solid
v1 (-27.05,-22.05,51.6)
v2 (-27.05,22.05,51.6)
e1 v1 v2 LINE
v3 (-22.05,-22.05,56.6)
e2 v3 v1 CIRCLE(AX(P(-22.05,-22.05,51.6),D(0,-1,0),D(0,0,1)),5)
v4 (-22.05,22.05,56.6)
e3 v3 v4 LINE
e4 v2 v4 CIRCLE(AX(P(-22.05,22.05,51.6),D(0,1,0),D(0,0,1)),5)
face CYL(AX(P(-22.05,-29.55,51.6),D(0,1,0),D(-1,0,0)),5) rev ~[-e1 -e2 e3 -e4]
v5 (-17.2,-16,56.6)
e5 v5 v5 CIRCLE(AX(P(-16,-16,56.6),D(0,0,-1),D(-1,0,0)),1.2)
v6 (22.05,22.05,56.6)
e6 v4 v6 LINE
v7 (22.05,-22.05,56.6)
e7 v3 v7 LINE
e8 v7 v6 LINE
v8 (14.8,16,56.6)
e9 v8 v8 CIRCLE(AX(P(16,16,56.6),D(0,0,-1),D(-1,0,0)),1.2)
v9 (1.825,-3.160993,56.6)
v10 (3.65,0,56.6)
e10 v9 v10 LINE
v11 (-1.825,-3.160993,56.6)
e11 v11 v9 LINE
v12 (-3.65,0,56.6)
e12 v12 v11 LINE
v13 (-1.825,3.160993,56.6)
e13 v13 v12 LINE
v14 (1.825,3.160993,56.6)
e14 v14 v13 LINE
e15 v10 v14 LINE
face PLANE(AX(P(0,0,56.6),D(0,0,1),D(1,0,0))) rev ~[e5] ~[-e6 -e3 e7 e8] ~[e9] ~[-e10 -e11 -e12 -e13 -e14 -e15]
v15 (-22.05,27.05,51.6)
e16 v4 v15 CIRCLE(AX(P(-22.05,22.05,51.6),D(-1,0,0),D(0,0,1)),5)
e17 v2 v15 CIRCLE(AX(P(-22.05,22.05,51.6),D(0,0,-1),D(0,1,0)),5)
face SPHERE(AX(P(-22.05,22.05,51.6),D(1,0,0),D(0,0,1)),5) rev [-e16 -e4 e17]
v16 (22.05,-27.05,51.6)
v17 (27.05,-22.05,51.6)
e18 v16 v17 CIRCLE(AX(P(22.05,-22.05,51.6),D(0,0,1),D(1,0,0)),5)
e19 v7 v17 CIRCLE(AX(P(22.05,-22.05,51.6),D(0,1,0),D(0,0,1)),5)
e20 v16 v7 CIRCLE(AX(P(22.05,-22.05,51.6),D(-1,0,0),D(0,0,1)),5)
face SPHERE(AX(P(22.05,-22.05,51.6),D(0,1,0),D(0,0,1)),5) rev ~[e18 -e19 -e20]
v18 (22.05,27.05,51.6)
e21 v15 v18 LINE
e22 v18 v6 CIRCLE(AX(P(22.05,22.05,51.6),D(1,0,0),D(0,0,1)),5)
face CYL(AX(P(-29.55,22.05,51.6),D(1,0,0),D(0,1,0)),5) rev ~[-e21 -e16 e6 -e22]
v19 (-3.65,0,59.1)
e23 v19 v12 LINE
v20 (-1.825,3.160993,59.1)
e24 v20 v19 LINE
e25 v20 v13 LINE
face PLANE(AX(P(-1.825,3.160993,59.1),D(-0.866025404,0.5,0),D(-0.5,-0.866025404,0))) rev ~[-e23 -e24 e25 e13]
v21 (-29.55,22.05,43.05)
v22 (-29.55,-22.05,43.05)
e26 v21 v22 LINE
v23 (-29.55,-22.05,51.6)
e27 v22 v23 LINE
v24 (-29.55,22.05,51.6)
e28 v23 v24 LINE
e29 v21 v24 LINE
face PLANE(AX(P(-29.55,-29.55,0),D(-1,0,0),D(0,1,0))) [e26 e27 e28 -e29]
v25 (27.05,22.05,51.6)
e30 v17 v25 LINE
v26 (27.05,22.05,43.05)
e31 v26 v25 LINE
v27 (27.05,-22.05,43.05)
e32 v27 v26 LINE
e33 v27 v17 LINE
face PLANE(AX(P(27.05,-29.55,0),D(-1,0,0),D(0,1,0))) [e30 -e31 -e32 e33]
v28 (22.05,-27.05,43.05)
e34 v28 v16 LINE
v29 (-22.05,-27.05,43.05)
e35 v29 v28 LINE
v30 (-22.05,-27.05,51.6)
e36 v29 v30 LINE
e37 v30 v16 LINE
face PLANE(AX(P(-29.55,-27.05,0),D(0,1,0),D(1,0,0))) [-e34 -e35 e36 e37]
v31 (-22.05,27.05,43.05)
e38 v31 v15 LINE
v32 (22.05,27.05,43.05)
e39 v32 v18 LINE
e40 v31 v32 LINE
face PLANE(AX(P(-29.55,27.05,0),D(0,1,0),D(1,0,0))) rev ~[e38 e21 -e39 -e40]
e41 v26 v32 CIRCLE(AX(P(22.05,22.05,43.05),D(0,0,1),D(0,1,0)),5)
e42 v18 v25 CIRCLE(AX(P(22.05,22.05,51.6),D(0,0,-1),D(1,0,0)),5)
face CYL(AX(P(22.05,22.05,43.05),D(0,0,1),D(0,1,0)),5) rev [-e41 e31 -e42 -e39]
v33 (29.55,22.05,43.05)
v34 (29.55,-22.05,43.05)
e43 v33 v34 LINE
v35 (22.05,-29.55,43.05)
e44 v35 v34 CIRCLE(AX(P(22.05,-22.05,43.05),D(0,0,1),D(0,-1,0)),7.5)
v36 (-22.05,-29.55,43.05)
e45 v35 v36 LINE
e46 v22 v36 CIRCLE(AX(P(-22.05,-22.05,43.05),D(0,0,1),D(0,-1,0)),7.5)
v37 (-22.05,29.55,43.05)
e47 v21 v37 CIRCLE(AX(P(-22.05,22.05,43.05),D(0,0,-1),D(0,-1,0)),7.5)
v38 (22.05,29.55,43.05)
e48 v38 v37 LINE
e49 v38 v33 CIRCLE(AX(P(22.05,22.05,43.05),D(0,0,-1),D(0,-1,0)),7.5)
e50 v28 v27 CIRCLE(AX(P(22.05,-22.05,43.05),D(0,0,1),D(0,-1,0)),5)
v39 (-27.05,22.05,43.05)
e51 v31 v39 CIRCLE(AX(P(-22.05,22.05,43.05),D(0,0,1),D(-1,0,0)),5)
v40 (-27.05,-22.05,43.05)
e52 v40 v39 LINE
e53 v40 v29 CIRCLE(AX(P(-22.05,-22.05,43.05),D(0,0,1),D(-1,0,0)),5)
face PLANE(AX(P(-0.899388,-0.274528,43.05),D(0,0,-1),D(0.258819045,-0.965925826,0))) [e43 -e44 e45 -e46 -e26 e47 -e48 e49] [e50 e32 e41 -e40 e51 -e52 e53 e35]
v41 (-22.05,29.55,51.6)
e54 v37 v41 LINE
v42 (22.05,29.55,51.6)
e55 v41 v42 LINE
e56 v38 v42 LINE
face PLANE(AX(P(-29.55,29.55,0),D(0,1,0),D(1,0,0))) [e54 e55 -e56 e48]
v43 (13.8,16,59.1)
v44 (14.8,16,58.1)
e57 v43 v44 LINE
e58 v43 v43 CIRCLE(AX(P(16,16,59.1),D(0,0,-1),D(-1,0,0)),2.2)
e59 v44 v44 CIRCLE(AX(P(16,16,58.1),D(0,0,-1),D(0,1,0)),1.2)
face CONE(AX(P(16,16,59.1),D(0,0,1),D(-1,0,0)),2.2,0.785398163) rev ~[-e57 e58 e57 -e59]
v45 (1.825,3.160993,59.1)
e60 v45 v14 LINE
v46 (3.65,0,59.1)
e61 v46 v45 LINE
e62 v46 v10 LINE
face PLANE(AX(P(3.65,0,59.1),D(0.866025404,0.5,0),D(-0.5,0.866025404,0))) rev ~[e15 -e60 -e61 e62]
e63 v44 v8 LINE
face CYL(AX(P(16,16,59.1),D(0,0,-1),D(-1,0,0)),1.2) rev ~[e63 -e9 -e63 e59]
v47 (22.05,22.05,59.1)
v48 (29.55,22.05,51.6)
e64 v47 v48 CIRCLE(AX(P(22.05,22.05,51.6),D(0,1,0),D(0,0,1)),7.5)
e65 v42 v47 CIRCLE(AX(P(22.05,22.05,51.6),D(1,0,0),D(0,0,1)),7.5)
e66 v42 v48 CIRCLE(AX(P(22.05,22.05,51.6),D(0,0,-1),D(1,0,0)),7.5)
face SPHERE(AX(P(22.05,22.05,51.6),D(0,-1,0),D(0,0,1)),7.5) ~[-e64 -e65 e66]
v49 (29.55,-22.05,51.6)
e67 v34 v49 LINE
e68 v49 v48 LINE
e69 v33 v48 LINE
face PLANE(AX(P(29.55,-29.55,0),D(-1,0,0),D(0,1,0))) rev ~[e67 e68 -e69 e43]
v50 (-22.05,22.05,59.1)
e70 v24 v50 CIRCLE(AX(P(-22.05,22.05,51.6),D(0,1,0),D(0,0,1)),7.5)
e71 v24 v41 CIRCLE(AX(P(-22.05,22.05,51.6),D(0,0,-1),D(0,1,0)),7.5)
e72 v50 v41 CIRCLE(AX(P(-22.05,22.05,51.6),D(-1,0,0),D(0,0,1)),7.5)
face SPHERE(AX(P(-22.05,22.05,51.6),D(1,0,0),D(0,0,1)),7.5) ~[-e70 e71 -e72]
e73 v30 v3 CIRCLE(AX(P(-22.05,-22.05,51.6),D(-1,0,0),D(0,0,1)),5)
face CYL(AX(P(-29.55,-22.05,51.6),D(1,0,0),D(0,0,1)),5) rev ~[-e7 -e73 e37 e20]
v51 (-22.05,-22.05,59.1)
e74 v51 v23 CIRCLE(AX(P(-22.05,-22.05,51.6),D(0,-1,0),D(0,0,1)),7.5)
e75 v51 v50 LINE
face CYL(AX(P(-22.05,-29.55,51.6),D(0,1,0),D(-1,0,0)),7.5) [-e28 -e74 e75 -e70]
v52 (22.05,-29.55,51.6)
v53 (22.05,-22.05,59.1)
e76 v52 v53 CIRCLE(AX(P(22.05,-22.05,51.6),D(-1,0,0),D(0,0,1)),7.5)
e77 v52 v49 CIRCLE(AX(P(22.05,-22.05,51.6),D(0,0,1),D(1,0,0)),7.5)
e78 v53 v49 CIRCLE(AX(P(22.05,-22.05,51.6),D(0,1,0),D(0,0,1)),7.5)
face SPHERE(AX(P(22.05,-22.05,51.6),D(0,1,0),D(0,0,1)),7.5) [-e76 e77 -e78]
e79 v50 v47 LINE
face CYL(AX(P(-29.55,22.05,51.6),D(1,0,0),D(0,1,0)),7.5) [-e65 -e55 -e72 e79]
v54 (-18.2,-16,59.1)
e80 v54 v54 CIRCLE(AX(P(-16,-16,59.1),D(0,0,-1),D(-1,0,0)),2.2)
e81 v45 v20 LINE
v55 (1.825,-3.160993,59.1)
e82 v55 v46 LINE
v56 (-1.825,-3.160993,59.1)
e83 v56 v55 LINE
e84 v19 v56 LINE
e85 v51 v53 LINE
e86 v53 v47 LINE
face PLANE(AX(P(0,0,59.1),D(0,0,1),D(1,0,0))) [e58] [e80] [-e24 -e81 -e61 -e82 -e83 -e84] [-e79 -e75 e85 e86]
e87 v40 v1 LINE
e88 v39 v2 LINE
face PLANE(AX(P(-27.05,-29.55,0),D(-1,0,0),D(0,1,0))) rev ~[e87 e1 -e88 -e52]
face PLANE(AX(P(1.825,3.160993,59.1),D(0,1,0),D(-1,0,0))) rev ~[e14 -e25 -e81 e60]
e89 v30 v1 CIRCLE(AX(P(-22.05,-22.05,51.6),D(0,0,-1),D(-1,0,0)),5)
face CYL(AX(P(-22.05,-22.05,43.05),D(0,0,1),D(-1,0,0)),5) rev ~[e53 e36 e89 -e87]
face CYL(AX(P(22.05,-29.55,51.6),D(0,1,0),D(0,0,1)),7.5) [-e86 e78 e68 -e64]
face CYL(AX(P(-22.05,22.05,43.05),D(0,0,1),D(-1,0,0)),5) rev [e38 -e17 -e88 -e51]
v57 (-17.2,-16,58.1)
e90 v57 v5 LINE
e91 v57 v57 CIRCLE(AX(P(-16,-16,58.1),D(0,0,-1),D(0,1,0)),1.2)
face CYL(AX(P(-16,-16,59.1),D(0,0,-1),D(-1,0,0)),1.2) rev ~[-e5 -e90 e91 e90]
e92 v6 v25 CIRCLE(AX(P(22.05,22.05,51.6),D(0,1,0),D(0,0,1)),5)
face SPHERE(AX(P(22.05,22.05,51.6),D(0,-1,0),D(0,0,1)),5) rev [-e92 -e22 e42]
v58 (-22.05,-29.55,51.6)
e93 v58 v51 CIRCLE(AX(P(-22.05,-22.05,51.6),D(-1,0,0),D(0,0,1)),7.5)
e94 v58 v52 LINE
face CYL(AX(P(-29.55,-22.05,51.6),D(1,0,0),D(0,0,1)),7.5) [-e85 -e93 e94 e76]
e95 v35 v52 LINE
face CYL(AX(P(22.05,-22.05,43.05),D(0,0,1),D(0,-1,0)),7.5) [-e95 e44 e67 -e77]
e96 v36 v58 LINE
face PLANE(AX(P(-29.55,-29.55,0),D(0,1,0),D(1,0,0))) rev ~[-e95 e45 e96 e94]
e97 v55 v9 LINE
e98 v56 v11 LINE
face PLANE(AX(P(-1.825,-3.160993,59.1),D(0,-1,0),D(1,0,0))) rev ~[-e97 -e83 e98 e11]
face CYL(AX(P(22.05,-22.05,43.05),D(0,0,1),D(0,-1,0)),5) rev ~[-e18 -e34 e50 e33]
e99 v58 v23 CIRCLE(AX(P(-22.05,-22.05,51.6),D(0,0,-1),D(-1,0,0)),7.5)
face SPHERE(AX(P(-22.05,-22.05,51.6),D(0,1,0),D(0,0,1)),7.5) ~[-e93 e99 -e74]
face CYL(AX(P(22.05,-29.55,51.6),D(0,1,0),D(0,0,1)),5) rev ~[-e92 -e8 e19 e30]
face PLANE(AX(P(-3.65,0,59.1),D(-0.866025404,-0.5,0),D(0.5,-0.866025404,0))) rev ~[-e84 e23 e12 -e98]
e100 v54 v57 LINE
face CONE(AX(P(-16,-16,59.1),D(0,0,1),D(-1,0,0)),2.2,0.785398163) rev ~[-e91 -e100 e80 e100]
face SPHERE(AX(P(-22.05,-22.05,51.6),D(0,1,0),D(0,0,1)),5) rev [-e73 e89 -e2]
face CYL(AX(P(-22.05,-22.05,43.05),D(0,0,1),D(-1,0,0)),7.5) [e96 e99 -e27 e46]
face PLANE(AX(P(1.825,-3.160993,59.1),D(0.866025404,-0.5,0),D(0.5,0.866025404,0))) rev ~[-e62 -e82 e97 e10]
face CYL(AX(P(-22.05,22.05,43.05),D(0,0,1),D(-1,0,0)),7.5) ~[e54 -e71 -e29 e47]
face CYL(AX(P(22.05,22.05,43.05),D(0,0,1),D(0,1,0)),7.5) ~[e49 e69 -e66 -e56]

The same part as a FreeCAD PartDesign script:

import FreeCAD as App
import Part
import Sketcher
Q = App.Units.Quantity


def edges_at(feature, points):
    """Names of the edges that pass closest to the given points."""
    edges = feature.Shape.Edges
    near = lambda p: min(range(len(edges)), key=lambda i: edges[i].distToShape(Part.Vertex(*p))[0])
    return sorted({f"Edge{near(p) + 1}" for p in points})


def faces_at(feature, points):
    """Names of the faces that lie closest to the given points."""
    faces = feature.Shape.Faces
    near = lambda p: min(range(len(faces)), key=lambda i: faces[i].distToShape(Part.Vertex(*p))[0])
    return sorted({f"Face{near(p) + 1}" for p in points})


def add_polygon(sketch, points):
    """Adds a closed chain of lines whose ends are joined by coincident constraints."""
    first, n = sketch.GeometryCount, len(points)
    for a, b in zip(points, points[1:] + points[:1]):
        sketch.addGeometry(Part.LineSegment(App.Vector(*a, 0), App.Vector(*b, 0)), False)
    for i in range(n):
        sketch.addConstraint(Sketcher.Constraint("Coincident", first + i, 2, first + (i + 1) % n, 1))

doc = App.newDocument("Part")
body = doc.addObject("PartDesign::Body", "Body")

# Sketch on XY plane
sketch1 = doc.addObject("Sketcher::SketchObject", "Sketch")
body.addObject(sketch1)
sketch1.AttachmentSupport = (doc.XY_Plane, [""])
sketch1.MapMode = "FlatFace"
add_polygon(sketch1, [(-30, 30), (-30, -30), (30, -30), (30, 30)])  # lines 0-3
sketch1.addConstraint([
    Sketcher.Constraint("Vertical", 0),
    Sketcher.Constraint("Horizontal", 1),
    Sketcher.Constraint("Vertical", 2),
    Sketcher.Constraint("Horizontal", 3),
    Sketcher.Constraint("Symmetric", 0, 2, 2, 2, -1, 1),
    Sketcher.Constraint("Equal", 3, 0),
    Sketcher.Constraint("DistanceX", 1, 1, 1, 2, 59.1),
])
pad1 = doc.addObject("PartDesign::Pad", "Pad")
body.addObject(pad1)
pad1.Profile = sketch1
pad1.Length = 59.1

# Sketch on XY plane
sketch2 = doc.addObject("Sketcher::SketchObject", "Sketch001")
body.addObject(sketch2)
sketch2.AttachmentSupport = (doc.XY_Plane, [""])
sketch2.MapMode = "FlatFace"
sketch2.AttachmentOffset = App.Placement(App.Vector(0, 0, 39.55), App.Rotation())
add_polygon(sketch2, [(-61, 34), (34, 59), (60, -34), (-36, -60)])  # lines 0-3
sketch2.addConstraint([
    Sketcher.Constraint("Perpendicular", 0, 1),
    Sketcher.Constraint("Perpendicular", 1, 2),
    Sketcher.Constraint("Perpendicular", 2, 3),
    Sketcher.Constraint("Angle", 0, Q("15 deg")),
    Sketcher.Constraint("DistanceX", -1, 1, 0, 2, 34.4276),
    Sketcher.Constraint("Distance", 0, 99.114771),
    Sketcher.Constraint("DistanceX", -1, 1, 1, 2, 59.511142),
    Sketcher.Constraint("DistanceY", 1, 2, -1, 1, 34.254659),
])
pocket1 = doc.addObject("PartDesign::Pocket", "Pocket")
body.addObject(pocket1)
pocket1.Profile = sketch2
pocket1.Type = "TwoLengths"
pocket1.Length = 94.964772
pocket1.Length2 = 3.5
doc.recompute()

fillet = doc.addObject("PartDesign::Fillet", "Fillet")
body.addObject(fillet)
fillet.Base = (pocket1, edges_at(pocket1, [
    (29.55, 0, 59.1),
    (0, 29.55, 59.1),
    (-29.55, 0, 59.1),
    (0, -29.55, 59.1),
    (-29.55, 29.55, 51.075),
    (29.55, 29.55, 51.075),
    (29.55, -29.55, 51.075),
    (-29.55, -29.55, 51.075),
]))
fillet.Radius = 7.5
doc.recompute()

thickness = doc.addObject("PartDesign::Thickness", "Thickness")
body.addObject(thickness)
thickness.Base = (fillet, faces_at(fillet, [(0, 0, 43.05)]))
thickness.Value = 2.5
thickness.Reversed = True
thickness.Join = "Intersection"

# Sketch on XY plane
sketch3 = doc.addObject("Sketcher::SketchObject", "Sketch002")
body.addObject(sketch3)
sketch3.AttachmentSupport = (doc.XY_Plane, [""])
sketch3.MapMode = "FlatFace"
sketch3.AttachmentOffset = App.Placement(App.Vector(0, 0, 59.1), App.Rotation())
sketch3.addGeometry([
    Part.Circle(App.Vector(16, 16, 0), App.Vector(0, 0, 1), 1.2),
    Part.Circle(App.Vector(19.9, -96.8, 0), App.Vector(0, 0, 1), 1.2),
    Part.Circle(App.Vector(-16, -16, 0), App.Vector(0, 0, 1), 1.2),
], False)
sketch3.addConstraint([
    Sketcher.Constraint("Equal", 0, 1),
    Sketcher.Constraint("Equal", 1, 2),
    Sketcher.Constraint("Symmetric", 0, 3, 2, 3, -1, 1),
    Sketcher.Constraint("Diameter", 0, 2.4),
    Sketcher.Constraint("DistanceX", -1, 1, 0, 3, 16.0),
    Sketcher.Constraint("DistanceY", -1, 1, 0, 3, 16.0),
    Sketcher.Constraint("DistanceX", -1, 1, 1, 3, 19.892964),
    Sketcher.Constraint("DistanceY", 1, 3, -1, 1, 96.835353),
])
doc.recompute()
hole = doc.addObject("PartDesign::Hole", "Hole")
body.addObject(hole)
hole.Profile = sketch3
hole.ThreadType = "None"
hole.Diameter = 2.4
hole.DepthType = "ThroughAll"
hole.HoleCutType = "Countersink"
hole.HoleCutDiameter = 4.4
hole.HoleCutCountersinkAngle = 90

# Sketch on XY plane
sketch4 = doc.addObject("Sketcher::SketchObject", "Sketch003")
body.addObject(sketch4)
sketch4.AttachmentSupport = (doc.XY_Plane, [""])
sketch4.MapMode = "FlatFace"
sketch4.AttachmentOffset = App.Placement(App.Vector(0, 0, 59.1), App.Rotation())
add_polygon(sketch4, [(-1.8, -3.2), (1.8, -3.2), (3.6, 0), (1.8, 3.2), (-1.8, 3.2), (-3.6, 0)])  # lines 0-5
sketch4.addConstraint([
    Sketcher.Constraint("Horizontal", 0),
    Sketcher.Constraint("Horizontal", 3),
    Sketcher.Constraint("Symmetric", 0, 2, 3, 2, -1, 1),
    Sketcher.Constraint("Symmetric", 1, 2, 4, 2, -1, 1),
    Sketcher.Constraint("PointOnObject", 1, 2, -1),
    Sketcher.Constraint("Parallel", 2, 5),
    Sketcher.Constraint("Vertical", 0, 2, 2, 2),
    Sketcher.Constraint("Angle", 1, Q("60 deg")),
    Sketcher.Constraint("DistanceX", 0, 1, 0, 2, 3.65),
    Sketcher.Constraint("DistanceX", 4, 2, 1, 2, 7.3),
])
pocket2 = doc.addObject("PartDesign::Pocket", "Pocket001")
body.addObject(pocket2)
pocket2.Profile = sketch4
pocket2.Type = "ThroughAll"

doc.recompute()
